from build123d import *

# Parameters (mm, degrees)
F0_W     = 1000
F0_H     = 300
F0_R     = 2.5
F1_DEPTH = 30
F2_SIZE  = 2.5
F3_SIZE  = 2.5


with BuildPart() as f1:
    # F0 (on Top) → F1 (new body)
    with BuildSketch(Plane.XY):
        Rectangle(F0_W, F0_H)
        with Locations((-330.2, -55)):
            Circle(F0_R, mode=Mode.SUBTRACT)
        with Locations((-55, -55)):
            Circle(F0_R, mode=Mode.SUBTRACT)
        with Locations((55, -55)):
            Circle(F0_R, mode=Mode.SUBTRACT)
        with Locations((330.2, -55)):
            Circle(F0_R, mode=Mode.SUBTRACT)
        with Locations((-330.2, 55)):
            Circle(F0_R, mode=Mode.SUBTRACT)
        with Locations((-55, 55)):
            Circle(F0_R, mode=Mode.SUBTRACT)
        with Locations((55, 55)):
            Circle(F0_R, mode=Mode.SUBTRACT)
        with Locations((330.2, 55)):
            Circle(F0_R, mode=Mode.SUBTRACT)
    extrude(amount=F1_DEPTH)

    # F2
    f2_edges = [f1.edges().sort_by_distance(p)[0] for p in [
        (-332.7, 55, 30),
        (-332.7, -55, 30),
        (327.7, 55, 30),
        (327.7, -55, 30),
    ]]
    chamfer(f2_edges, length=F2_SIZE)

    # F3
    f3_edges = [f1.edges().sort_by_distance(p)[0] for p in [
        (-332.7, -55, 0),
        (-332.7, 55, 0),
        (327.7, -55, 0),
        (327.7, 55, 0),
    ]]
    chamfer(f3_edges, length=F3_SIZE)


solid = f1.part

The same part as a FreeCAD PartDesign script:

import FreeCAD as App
import Part
import Sketcher

V = App.Vector
Q = App.Units.Quantity


def edges_at(feature, points):
    """Names of the edges that pass closest to the given points."""
    edges = feature.Shape.Edges
    near = lambda p: min(range(len(edges)), key=lambda i: edges[i].distToShape(Part.Vertex(*p))[0])
    return sorted({f"Edge{near(p) + 1}" for p in points})


def add_polygon(sketch, points):
    """Adds a closed chain of lines whose ends are joined by coincident constraints."""
    first, n = sketch.GeometryCount, len(points)
    for a, b in zip(points, points[1:] + points[:1]):
        sketch.addGeometry(Part.LineSegment(App.Vector(*a, 0), App.Vector(*b, 0)), False)
    for i in range(n):
        sketch.addConstraint(Sketcher.Constraint("Coincident", first + i, 2, first + (i + 1) % n, 1))

doc = App.newDocument("Part")
body = doc.addObject("PartDesign::Body", "Body")

# Sketch on XY plane
sketch1 = body.newObject("Sketcher::SketchObject", "Sketch")
sketch1.AttachmentSupport = (doc.getObject("XY_Plane"), [""])
sketch1.MapMode = "FlatFace"
add_polygon(sketch1, [(-500, 150), (-500, -150), (500, -150), (500, 150)])  # lines 0-3
sketch1.addGeometry(Part.Circle(V(-330.2, -55, 0), V(0, 0, 1), 2.5), False)  # 4
sketch1.addGeometry(Part.Circle(V(-55, -55, 0), V(0, 0, 1), 2.5), False)  # 5
sketch1.addGeometry(Part.Circle(V(55, -55, 0), V(0, 0, 1), 2.5), False)  # 6
sketch1.addGeometry(Part.Circle(V(330.2, -55, 0), V(0, 0, 1), 2.5), False)  # 7
sketch1.addGeometry(Part.Circle(V(-330.2, 55, 0), V(0, 0, 1), 2.5), False)  # 8
sketch1.addGeometry(Part.Circle(V(-55, 55, 0), V(0, 0, 1), 2.5), False)  # 9
sketch1.addGeometry(Part.Circle(V(55, 55, 0), V(0, 0, 1), 2.5), False)  # 10
sketch1.addGeometry(Part.Circle(V(330.2, 55, 0), V(0, 0, 1), 2.5), False)  # 11
sketch1.addConstraint([
    Sketcher.Constraint("Vertical", 0),
    Sketcher.Constraint("Horizontal", 1),
    Sketcher.Constraint("Vertical", 2),
    Sketcher.Constraint("Horizontal", 3),
    Sketcher.Constraint("Equal", 4, 5),
    Sketcher.Constraint("Equal", 5, 6),
    Sketcher.Constraint("Equal", 6, 7),
    Sketcher.Constraint("Equal", 7, 8),
    Sketcher.Constraint("Equal", 8, 9),
    Sketcher.Constraint("Equal", 9, 10),
    Sketcher.Constraint("Equal", 10, 11),
    Sketcher.Constraint("Symmetric", 7, 3, 8, 3, -1, 1),
    Sketcher.Constraint("Symmetric", 6, 3, 9, 3, -1, 1),
    Sketcher.Constraint("Symmetric", 5, 3, 10, 3, -1, 1),
    Sketcher.Constraint("Symmetric", 4, 3, 11, 3, -1, 1),
    Sketcher.Constraint("Symmetric", 0, 2, 2, 2, -1, 1),
    Sketcher.Constraint("Symmetric", 5, 3, 6, 3, -2),
    Sketcher.Constraint("Symmetric", 4, 3, 7, 3, -2),
    Sketcher.Constraint("Horizontal", 4, 3, 5, 3),
    Sketcher.Constraint("Diameter", 4, Q("5 mm")),
    Sketcher.Constraint("DistanceX", 1, 1, 1, 2, Q("1000 mm")),
    Sketcher.Constraint("DistanceY", 0, 2, 0, 1, Q("300 mm")),
    Sketcher.Constraint("DistanceY", 4, 3, -1, 1, Q("55 mm")),
    Sketcher.Constraint("DistanceX", 5, 3, -1, 1, Q("55 mm")),
    Sketcher.Constraint("DistanceX", 4, 3, -1, 1, Q("330.2 mm")),
])
pad1 = body.newObject("PartDesign::Pad", "Pad")
pad1.Profile = sketch1
pad1.Length = 30
doc.recompute()

chamfer = body.newObject("PartDesign::Chamfer", "Chamfer")
chamfer.Base = (pad1, edges_at(pad1, [
    (-332.7, 55, 30),
    (-332.7, -55, 30),
    (327.7, 55, 30),
    (327.7, -55, 30),
]))
chamfer.Size = 2.5
doc.recompute()

chamfer2 = body.newObject("PartDesign::Chamfer", "Chamfer001")
chamfer2.Base = (chamfer, edges_at(chamfer, [
    (-332.7, -55, 0),
    (-332.7, 55, 0),
    (327.7, -55, 0),
    (327.7, 55, 0),
]))
chamfer2.Size = 2.5

doc.recompute()
